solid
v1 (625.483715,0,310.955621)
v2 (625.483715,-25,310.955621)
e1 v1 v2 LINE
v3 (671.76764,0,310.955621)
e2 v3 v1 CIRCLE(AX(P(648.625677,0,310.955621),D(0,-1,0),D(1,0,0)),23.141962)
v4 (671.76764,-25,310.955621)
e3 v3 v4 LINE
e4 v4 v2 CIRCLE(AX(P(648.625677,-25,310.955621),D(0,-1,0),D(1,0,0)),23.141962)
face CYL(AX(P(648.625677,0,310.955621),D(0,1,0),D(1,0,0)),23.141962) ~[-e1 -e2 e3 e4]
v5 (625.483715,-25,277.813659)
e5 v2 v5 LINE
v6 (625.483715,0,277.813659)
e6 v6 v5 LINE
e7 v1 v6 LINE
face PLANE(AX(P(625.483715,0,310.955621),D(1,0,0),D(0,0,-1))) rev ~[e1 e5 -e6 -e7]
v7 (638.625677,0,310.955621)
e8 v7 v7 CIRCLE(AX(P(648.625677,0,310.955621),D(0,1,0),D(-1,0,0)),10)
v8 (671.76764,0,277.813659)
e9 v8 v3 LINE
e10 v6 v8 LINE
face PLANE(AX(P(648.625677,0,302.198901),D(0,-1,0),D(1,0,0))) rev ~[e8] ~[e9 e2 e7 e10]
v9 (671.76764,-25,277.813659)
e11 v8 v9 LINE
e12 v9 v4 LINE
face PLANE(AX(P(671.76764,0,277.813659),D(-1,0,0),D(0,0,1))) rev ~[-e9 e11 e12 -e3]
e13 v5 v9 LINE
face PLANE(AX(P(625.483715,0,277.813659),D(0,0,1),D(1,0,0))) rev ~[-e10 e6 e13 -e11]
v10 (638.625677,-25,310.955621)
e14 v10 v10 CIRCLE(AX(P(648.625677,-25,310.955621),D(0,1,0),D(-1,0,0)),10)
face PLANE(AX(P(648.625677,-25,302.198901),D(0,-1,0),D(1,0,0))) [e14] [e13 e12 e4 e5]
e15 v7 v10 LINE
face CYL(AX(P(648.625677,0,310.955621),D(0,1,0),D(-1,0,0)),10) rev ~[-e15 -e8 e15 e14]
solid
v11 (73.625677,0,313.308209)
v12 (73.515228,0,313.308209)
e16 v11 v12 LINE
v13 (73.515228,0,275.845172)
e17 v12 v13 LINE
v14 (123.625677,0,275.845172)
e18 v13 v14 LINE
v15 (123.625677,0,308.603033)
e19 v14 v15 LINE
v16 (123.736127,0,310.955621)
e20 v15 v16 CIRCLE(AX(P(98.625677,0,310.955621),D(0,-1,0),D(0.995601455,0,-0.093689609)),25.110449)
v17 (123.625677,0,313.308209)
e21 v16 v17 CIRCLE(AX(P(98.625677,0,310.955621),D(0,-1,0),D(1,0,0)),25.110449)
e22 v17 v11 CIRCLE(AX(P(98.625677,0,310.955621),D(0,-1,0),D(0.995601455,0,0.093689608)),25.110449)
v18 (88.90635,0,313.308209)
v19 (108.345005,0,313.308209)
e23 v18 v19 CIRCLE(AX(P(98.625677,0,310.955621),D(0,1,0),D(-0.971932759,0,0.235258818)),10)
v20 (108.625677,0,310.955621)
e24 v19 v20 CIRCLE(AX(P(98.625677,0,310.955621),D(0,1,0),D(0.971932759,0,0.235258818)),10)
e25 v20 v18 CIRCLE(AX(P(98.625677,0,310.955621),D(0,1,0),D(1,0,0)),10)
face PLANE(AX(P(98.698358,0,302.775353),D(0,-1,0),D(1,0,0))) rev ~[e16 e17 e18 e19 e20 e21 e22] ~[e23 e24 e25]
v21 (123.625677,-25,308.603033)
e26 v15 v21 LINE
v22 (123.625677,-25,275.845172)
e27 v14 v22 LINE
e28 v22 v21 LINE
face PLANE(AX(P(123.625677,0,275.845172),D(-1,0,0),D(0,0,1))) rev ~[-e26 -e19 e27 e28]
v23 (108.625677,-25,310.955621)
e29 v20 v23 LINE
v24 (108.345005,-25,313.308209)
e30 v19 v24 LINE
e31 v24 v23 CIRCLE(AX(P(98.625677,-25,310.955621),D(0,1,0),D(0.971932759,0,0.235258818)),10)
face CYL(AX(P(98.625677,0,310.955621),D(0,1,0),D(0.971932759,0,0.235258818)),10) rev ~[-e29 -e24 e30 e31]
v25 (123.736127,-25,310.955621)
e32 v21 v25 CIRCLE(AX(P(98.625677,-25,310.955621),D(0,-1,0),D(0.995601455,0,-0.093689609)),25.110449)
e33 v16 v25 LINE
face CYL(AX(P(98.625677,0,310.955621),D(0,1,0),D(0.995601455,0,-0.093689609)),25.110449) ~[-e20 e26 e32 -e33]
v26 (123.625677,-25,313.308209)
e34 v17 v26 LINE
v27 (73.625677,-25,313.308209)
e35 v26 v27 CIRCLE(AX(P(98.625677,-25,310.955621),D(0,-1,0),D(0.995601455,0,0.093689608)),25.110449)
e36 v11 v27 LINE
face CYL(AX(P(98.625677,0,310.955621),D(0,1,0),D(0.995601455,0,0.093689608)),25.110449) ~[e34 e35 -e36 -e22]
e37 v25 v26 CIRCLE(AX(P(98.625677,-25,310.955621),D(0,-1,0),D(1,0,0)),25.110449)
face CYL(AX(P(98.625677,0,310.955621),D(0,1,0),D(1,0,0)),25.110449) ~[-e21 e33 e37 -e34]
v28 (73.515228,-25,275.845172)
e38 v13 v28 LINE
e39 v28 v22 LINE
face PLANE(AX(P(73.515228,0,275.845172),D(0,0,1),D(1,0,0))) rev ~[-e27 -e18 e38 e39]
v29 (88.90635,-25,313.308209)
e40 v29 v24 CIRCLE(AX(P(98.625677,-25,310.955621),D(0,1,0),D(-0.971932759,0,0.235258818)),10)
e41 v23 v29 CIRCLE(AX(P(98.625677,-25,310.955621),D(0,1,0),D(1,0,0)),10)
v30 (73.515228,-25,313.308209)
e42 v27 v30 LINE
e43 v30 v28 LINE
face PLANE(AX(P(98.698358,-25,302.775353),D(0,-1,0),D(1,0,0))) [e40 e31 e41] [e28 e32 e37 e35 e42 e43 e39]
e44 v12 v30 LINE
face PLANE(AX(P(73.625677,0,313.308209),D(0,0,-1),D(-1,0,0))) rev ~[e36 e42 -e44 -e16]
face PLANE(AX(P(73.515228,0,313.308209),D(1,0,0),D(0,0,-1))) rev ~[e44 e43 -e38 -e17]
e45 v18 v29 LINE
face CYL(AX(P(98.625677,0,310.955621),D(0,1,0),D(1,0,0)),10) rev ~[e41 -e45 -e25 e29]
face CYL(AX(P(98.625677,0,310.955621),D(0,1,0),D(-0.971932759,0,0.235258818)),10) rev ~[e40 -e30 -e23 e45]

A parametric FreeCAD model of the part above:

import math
import FreeCAD as App
import Part
import Sketcher

V = App.Vector
Q = App.Units.Quantity

doc = App.newDocument("Part")
body = doc.addObject("PartDesign::Body", "Body")

# Sketch on XZ plane
sketch1 = body.newObject("Sketcher::SketchObject", "Sketch")
sketch1.AttachmentSupport = (doc.getObject("XZ_Plane"), [""])
sketch1.MapMode = "FlatFace"
sketch1.addGeometry(Part.ArcOfCircle(Part.Circle(V(98.625677, 310.955621, 0), V(0, 0, 1), 25.110449), math.radians(-5.375904), math.radians(0)), False)
sketch1.addGeometry(Part.ArcOfCircle(Part.Circle(V(98.625677, 310.955621, 0), V(0, 0, 1), 25.110449), math.radians(0), math.radians(5.375904)), False)
sketch1.addGeometry(Part.ArcOfCircle(Part.Circle(V(98.625677, 310.955621, 0), V(0, 0, 1), 25.110449), math.radians(5.375904), math.radians(174.624096)), False)
sketch1.addGeometry(Part.LineSegment(V(73.625677, 313.308209, 0), V(73.515228, 313.308209, 0)), False)
sketch1.addGeometry(Part.LineSegment(V(73.515228, 313.308209, 0), V(73.515228, 275.845172, 0)), False)
sketch1.addGeometry(Part.LineSegment(V(73.515228, 275.845172, 0), V(123.625677, 275.845172, 0)), False)
sketch1.addGeometry(Part.LineSegment(V(123.625677, 275.845172, 0), V(123.625677, 308.603033, 0)), False)
sketch1.addGeometry(Part.ArcOfCircle(Part.Circle(V(98.625677, 310.955621, 0), V(0, 0, 1), 10), math.radians(0), math.radians(13.60688)), False)
sketch1.addGeometry(Part.ArcOfCircle(Part.Circle(V(98.625677, 310.955621, 0), V(0, 0, 1), 10), math.radians(166.39312), math.radians(360)), False)
sketch1.addGeometry(Part.ArcOfCircle(Part.Circle(V(98.625677, 310.955621, 0), V(0, 0, 1), 10), math.radians(13.60688), math.radians(166.39312)), False)
sketch1.addConstraint(Sketcher.Constraint("Tangent", 0, 2, 1, 1))
sketch1.addConstraint(Sketcher.Constraint("Tangent", 1, 2, 2, 1))
sketch1.addConstraint(Sketcher.Constraint("Coincident", 2, 2, 3, 1))
sketch1.addConstraint(Sketcher.Constraint("Coincident", 3, 2, 4, 1))
sketch1.addConstraint(Sketcher.Constraint("Coincident", 4, 2, 5, 1))
sketch1.addConstraint(Sketcher.Constraint("Coincident", 5, 2, 6, 1))
sketch1.addConstraint(Sketcher.Constraint("Coincident", 6, 2, 0, 1))
sketch1.addConstraint(Sketcher.Constraint("Tangent", 7, 1, 8, 2))
sketch1.addConstraint(Sketcher.Constraint("Tangent", 8, 1, 9, 2))
sketch1.addConstraint(Sketcher.Constraint("Tangent", 9, 1, 7, 2))
sketch1.addConstraint(Sketcher.Constraint("Horizontal", 3))
sketch1.addConstraint(Sketcher.Constraint("Vertical", 4))
sketch1.addConstraint(Sketcher.Constraint("Horizontal", 5))
sketch1.addConstraint(Sketcher.Constraint("Vertical", 6))
sketch1.addConstraint(Sketcher.Constraint("Coincident", 2, 3, 0, 3))
sketch1.addConstraint(Sketcher.Constraint("Coincident", 7, 3, 0, 3))
sketch1.addConstraint(Sketcher.Constraint("Horizontal", 9, 3, 0, 2))
sketch1.addConstraint(Sketcher.Constraint("Horizontal", 1, 2, 2, 2))
sketch1.addConstraint(Sketcher.Constraint("Horizontal", 0, 2, 7, 1))
sketch1.addConstraint(Sketcher.Constraint("Horizontal", 3, 2, 8, 1))
sketch1.addConstraint(Sketcher.Constraint("Horizontal", 8, 1, 9, 1))
sketch1.addConstraint(Sketcher.Constraint("Vertical", 1, 2, 5, 2))
sketch1.addConstraint(Sketcher.Constraint("Radius", 7, Q("10 mm")))
sketch1.addConstraint(Sketcher.Constraint("DistanceX", 1, 3, 1, 2, Q("25 mm")))
sketch1.addConstraint(Sketcher.Constraint("Radius", 0, Q("25.110449 mm")))
sketch1.addConstraint(Sketcher.Constraint("DistanceX", 3, 2, 3, 1, Q("0.110449 mm")))
sketch1.addConstraint(Sketcher.Constraint("DistanceY", 6, 1, 6, 2, Q("32.757861 mm")))
sketch1.addConstraint(Sketcher.Constraint("DistanceY", -1, 1, 0, 3, Q("310.955621 mm")))
sketch1.addConstraint(Sketcher.Constraint("DistanceX", -1, 1, 8, 1, Q("88.90635 mm")))
pad1 = body.newObject("PartDesign::Pad", "Pad")
pad1.Profile = sketch1
pad1.Length = 25
body2 = doc.addObject("PartDesign::Body", "Body001")

# Sketch on XZ plane
sketch2 = body2.newObject("Sketcher::SketchObject", "Sketch001")
sketch2.AttachmentSupport = (doc.getObject("XZ_Plane001"), [""])
sketch2.MapMode = "FlatFace"
sketch2.addGeometry(Part.ArcOfCircle(Part.Circle(V(648.625677, 310.955621, 0), V(0, 0, 1), 23.141962), math.radians(0), math.radians(180)), False)
sketch2.addGeometry(Part.LineSegment(V(625.483715, 310.955621, 0), V(625.483715, 277.813659, 0)), False)
sketch2.addGeometry(Part.LineSegment(V(625.483715, 277.813659, 0), V(671.76764, 277.813659, 0)), False)
sketch2.addGeometry(Part.LineSegment(V(671.76764, 277.813659, 0), V(671.76764, 310.955621, 0)), False)
sketch2.addGeometry(Part.Circle(V(648.625677, 310.955621, 0), V(0, 0, 1), 10), False)
sketch2.addConstraint(Sketcher.Constraint("Tangent", 0, 2, 1, 1))
sketch2.addConstraint(Sketcher.Constraint("Coincident", 1, 2, 2, 1))
sketch2.addConstraint(Sketcher.Constraint("Coincident", 2, 2, 3, 1))
sketch2.addConstraint(Sketcher.Constraint("Tangent", 3, 2, 0, 1))
sketch2.addConstraint(Sketcher.Constraint("Vertical", 1))
sketch2.addConstraint(Sketcher.Constraint("Horizontal", 2))
sketch2.addConstraint(Sketcher.Constraint("Vertical", 3))
sketch2.addConstraint(Sketcher.Constraint("Coincident", 4, 3, 0, 3))
sketch2.addConstraint(Sketcher.Constraint("Diameter", 4, Q("20 mm")))
sketch2.addConstraint(Sketcher.Constraint("Radius", 0, Q("23.141962 mm")))
sketch2.addConstraint(Sketcher.Constraint("DistanceY", 1, 2, 1, 1, Q("33.141962 mm")))
sketch2.addConstraint(Sketcher.Constraint("DistanceY", -1, 1, 0, 3, Q("310.955621 mm")))
sketch2.addConstraint(Sketcher.Constraint("DistanceX", -1, 1, 2, 2, Q("671.76764 mm")))
pad2 = body2.newObject("PartDesign::Pad", "Pad001")
pad2.Profile = sketch2
pad2.Length = 25

doc.recompute()
